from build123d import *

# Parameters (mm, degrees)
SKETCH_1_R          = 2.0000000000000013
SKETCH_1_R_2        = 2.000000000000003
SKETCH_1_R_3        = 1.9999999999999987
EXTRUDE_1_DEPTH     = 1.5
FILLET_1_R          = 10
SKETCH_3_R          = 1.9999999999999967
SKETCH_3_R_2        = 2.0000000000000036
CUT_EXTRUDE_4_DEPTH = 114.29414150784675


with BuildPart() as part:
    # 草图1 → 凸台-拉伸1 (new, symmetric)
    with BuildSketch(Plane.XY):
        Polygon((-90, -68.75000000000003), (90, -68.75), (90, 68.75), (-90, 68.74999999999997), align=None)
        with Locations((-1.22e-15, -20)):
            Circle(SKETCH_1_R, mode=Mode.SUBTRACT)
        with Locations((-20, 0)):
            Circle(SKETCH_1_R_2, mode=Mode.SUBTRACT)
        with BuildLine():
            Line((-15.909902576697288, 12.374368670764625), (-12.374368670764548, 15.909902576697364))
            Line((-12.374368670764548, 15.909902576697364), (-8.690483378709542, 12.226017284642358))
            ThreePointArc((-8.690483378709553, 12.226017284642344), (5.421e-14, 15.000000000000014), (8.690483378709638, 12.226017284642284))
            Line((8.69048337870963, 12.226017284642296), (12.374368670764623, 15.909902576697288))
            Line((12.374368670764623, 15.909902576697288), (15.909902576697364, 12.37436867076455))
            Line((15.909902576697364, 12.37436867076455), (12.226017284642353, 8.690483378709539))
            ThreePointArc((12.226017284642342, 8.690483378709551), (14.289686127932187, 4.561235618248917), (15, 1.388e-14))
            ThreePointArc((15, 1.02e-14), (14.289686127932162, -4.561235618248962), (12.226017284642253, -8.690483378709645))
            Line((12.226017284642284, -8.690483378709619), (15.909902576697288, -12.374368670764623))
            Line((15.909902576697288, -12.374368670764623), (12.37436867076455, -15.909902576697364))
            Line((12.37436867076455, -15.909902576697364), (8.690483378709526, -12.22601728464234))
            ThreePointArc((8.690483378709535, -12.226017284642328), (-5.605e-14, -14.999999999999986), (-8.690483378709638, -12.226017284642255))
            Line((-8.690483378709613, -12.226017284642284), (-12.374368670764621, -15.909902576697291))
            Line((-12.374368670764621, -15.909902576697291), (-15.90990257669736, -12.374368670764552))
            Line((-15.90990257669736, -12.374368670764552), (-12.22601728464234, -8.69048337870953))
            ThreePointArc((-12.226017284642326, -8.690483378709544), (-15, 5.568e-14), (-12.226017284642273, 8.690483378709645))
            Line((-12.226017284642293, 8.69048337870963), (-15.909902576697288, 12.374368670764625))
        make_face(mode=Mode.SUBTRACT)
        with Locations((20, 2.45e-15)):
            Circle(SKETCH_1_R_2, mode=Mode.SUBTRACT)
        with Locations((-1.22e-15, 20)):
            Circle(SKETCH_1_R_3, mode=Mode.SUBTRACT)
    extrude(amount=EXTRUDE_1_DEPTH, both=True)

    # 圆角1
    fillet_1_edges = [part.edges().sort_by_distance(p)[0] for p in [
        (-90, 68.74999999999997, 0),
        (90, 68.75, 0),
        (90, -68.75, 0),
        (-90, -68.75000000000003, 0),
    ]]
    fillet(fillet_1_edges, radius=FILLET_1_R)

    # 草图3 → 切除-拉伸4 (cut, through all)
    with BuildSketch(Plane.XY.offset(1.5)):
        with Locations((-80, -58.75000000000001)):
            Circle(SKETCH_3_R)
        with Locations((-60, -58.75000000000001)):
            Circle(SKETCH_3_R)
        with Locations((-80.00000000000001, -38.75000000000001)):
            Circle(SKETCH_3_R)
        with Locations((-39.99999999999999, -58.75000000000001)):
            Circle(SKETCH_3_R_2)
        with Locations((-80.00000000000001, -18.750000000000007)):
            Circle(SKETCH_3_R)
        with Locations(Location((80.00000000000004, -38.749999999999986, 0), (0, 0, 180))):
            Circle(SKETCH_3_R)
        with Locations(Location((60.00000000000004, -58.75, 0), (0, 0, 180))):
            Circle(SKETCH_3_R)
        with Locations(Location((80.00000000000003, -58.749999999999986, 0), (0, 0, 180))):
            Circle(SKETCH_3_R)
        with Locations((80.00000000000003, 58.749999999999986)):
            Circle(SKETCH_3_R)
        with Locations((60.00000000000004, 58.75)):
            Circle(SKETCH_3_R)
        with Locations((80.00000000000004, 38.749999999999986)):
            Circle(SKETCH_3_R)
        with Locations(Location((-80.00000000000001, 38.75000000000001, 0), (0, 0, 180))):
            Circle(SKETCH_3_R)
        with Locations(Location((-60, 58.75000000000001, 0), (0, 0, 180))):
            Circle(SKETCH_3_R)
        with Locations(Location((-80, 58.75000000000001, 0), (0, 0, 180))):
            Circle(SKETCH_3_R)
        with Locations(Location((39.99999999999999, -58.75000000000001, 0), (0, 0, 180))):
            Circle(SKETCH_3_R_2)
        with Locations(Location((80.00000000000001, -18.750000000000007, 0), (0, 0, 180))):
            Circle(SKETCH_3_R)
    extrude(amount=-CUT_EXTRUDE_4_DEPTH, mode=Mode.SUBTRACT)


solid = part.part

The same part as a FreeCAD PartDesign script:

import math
import FreeCAD as App
import Part
import Sketcher

V = App.Vector


def edges_at(feature, points):
    """Names of the edges that pass closest to the given points."""
    edges = feature.Shape.Edges
    near = lambda p: min(range(len(edges)), key=lambda i: edges[i].distToShape(Part.Vertex(*p))[0])
    return sorted({f"Edge{near(p) + 1}" for p in points})

doc = App.newDocument("Part")
body = doc.addObject("PartDesign::Body", "Body")

sketch1 = doc.addObject("Sketcher::SketchObject", "Sketch")
body.addObject(sketch1)
sketch1.AttachmentSupport = (doc.XY_Plane, [""])
sketch1.MapMode = "FlatFace"
sketch1.addGeometry(Part.LineSegment(V(-90, -68.8, 0), V(90, -68.8, 0)), False)
sketch1.addGeometry(Part.LineSegment(V(90, -68.8, 0), V(90, 68.8, 0)), False)
sketch1.addGeometry(Part.LineSegment(V(90, 68.8, 0), V(-90, 68.8, 0)), False)
sketch1.addGeometry(Part.LineSegment(V(-90, 68.8, 0), V(-90, -68.8, 0)), False)
sketch1.addGeometry(Part.Circle(V(0, -20, 0), V(0, 0, 1), 2), False)
sketch1.addGeometry(Part.Circle(V(-20, 0, 0), V(0, 0, 1), 2), False)
sketch1.addGeometry(Part.LineSegment(V(-12.2, 8.7, 0), V(-15.9, 12.4, 0)), False)
sketch1.addGeometry(Part.LineSegment(V(-15.9, 12.4, 0), V(-12.4, 15.9, 0)), False)
sketch1.addGeometry(Part.LineSegment(V(-12.4, 15.9, 0), V(-8.7, 12.2, 0)), False)
sketch1.addGeometry(Part.ArcOfCircle(Part.Circle(V(0, 0, 0), V(0, 0, 1), 15), math.radians(55), math.radians(125)), False)
sketch1.addGeometry(Part.LineSegment(V(8.7, 12.2, 0), V(12.4, 15.9, 0)), False)
sketch1.addGeometry(Part.LineSegment(V(12.4, 15.9, 0), V(15.9, 12.4, 0)), False)
sketch1.addGeometry(Part.LineSegment(V(15.9, 12.4, 0), V(12.2, 8.7, 0)), False)
sketch1.addGeometry(Part.ArcOfCircle(Part.Circle(V(0, 0, 0), V(0, 0, 1), 15), math.radians(-35), math.radians(35)), False)
sketch1.addGeometry(Part.LineSegment(V(12.2, -8.7, 0), V(15.9, -12.4, 0)), False)
sketch1.addGeometry(Part.LineSegment(V(15.9, -12.4, 0), V(12.4, -15.9, 0)), False)
sketch1.addGeometry(Part.LineSegment(V(12.4, -15.9, 0), V(8.7, -12.2, 0)), False)
sketch1.addGeometry(Part.ArcOfCircle(Part.Circle(V(0, 0, 0), V(0, 0, 1), 15), math.radians(-125), math.radians(-55)), False)
sketch1.addGeometry(Part.LineSegment(V(-8.7, -12.2, 0), V(-12.4, -15.9, 0)), False)
sketch1.addGeometry(Part.LineSegment(V(-12.4, -15.9, 0), V(-15.9, -12.4, 0)), False)
sketch1.addGeometry(Part.LineSegment(V(-15.9, -12.4, 0), V(-12.2, -8.7, 0)), False)
sketch1.addGeometry(Part.ArcOfCircle(Part.Circle(V(0, 0, 0), V(0, 0, 1), 15), math.radians(145), math.radians(215)), False)
sketch1.addGeometry(Part.Circle(V(20, 0, 0), V(0, 0, 1), 2), False)
sketch1.addGeometry(Part.Circle(V(0, 20, 0), V(0, 0, 1), 2), False)
sketch1.addConstraint(Sketcher.Constraint("Coincident", 0, 2, 1, 1))
sketch1.addConstraint(Sketcher.Constraint("Coincident", 1, 2, 2, 1))
sketch1.addConstraint(Sketcher.Constraint("Coincident", 2, 2, 3, 1))
sketch1.addConstraint(Sketcher.Constraint("Coincident", 3, 2, 0, 1))
sketch1.addConstraint(Sketcher.Constraint("Coincident", 6, 2, 7, 1))
sketch1.addConstraint(Sketcher.Constraint("Coincident", 7, 2, 8, 1))
sketch1.addConstraint(Sketcher.Constraint("Coincident", 8, 2, 9, 2))
sketch1.addConstraint(Sketcher.Constraint("Coincident", 9, 1, 10, 1))
sketch1.addConstraint(Sketcher.Constraint("Coincident", 10, 2, 11, 1))
sketch1.addConstraint(Sketcher.Constraint("Coincident", 11, 2, 12, 1))
sketch1.addConstraint(Sketcher.Constraint("Coincident", 12, 2, 13, 2))
sketch1.addConstraint(Sketcher.Constraint("Coincident", 13, 1, 14, 1))
sketch1.addConstraint(Sketcher.Constraint("Coincident", 14, 2, 15, 1))
sketch1.addConstraint(Sketcher.Constraint("Coincident", 15, 2, 16, 1))
sketch1.addConstraint(Sketcher.Constraint("Coincident", 16, 2, 17, 2))
sketch1.addConstraint(Sketcher.Constraint("Coincident", 17, 1, 18, 1))
sketch1.addConstraint(Sketcher.Constraint("Coincident", 18, 2, 19, 1))
sketch1.addConstraint(Sketcher.Constraint("Coincident", 19, 2, 20, 1))
sketch1.addConstraint(Sketcher.Constraint("Coincident", 20, 2, 21, 2))
sketch1.addConstraint(Sketcher.Constraint("Coincident", 21, 1, 6, 1))
sketch1.addConstraint(Sketcher.Constraint("Horizontal", 0))
sketch1.addConstraint(Sketcher.Constraint("Vertical", 1))
sketch1.addConstraint(Sketcher.Constraint("Horizontal", 2))
sketch1.addConstraint(Sketcher.Constraint("Vertical", 3))
sketch1.addConstraint(Sketcher.Constraint("Coincident", 9, 3, -1, 1))
sketch1.addConstraint(Sketcher.Constraint("Coincident", 13, 3, -1, 1))
sketch1.addConstraint(Sketcher.Constraint("Coincident", 17, 3, -1, 1))
sketch1.addConstraint(Sketcher.Constraint("Coincident", 21, 3, -1, 1))
sketch1.addConstraint(Sketcher.Constraint("Equal", 4, 5))
sketch1.addConstraint(Sketcher.Constraint("Equal", 9, 13))
sketch1.addConstraint(Sketcher.Constraint("Equal", 13, 17))
sketch1.addConstraint(Sketcher.Constraint("Equal", 17, 21))
sketch1.addConstraint(Sketcher.Constraint("Equal", 5, 22))
sketch1.addConstraint(Sketcher.Constraint("Equal", 22, 23))
sketch1.addConstraint(Sketcher.Constraint("Symmetric", 5, 3, 22, 3, -1, 1))
sketch1.addConstraint(Sketcher.Constraint("Symmetric", 4, 3, 23, 3, -1, 1))
sketch1.addConstraint(Sketcher.Constraint("Symmetric", 0, 2, 2, 2, -1, 1))
sketch1.addConstraint(Sketcher.Constraint("Symmetric", 6, 2, 14, 2, -1, 1))
sketch1.addConstraint(Sketcher.Constraint("Symmetric", 7, 2, 15, 2, -1, 1))
sketch1.addConstraint(Sketcher.Constraint("Symmetric", 10, 2, 18, 2, -1, 1))
sketch1.addConstraint(Sketcher.Constraint("Symmetric", 11, 2, 19, 2, -1, 1))
sketch1.addConstraint(Sketcher.Constraint("Symmetric", 7, 2, 10, 2, -2))
sketch1.addConstraint(Sketcher.Constraint("Symmetric", 6, 2, 11, 2, -2))
sketch1.addConstraint(Sketcher.Constraint("PointOnObject", 4, 3, -2))
sketch1.addConstraint(Sketcher.Constraint("PointOnObject", 5, 3, -1))
sketch1.addConstraint(Sketcher.Constraint("Perpendicular", 6, 7))
sketch1.addConstraint(Sketcher.Constraint("Perpendicular", 7, 8))
sketch1.addConstraint(Sketcher.Constraint("Perpendicular", 8, 10))
sketch1.addConstraint(Sketcher.Constraint("Perpendicular", 10, 11))
sketch1.addConstraint(Sketcher.Constraint("Perpendicular", 11, 12))
sketch1.addConstraint(Sketcher.Constraint("Perpendicular", 12, 14))
sketch1.addConstraint(Sketcher.Constraint("Perpendicular", 15, 16))
sketch1.addConstraint(Sketcher.Constraint("Perpendicular", 16, 18))
sketch1.addConstraint(Sketcher.Constraint("Perpendicular", 19, 20))
sketch1.addConstraint(Sketcher.Constraint("Equal", 6, 8))
sketch1.addConstraint(Sketcher.Constraint("Diameter", 4, 4.0))
sketch1.addConstraint(Sketcher.Constraint("Radius", 9, 15.0))
sketch1.addConstraint(Sketcher.Constraint("DistanceX", 0, 1, 0, 2, 180.0))
sketch1.addConstraint(Sketcher.Constraint("Distance", 7, 5.0))
sketch1.addConstraint(Sketcher.Constraint("DistanceY", 1, 1, 1, 2, 137.5))
sketch1.addConstraint(Sketcher.Constraint("DistanceY", 4, 3, -1, 1, 20.0))
sketch1.addConstraint(Sketcher.Constraint("DistanceX", 5, 3, -1, 1, 20.0))
sketch1.addConstraint(Sketcher.Constraint("Distance", 6, 5.209801))
pad1 = doc.addObject("PartDesign::Pad", "Pad")
body.addObject(pad1)
pad1.Profile = sketch1
pad1.Length = 3
pad1.Midplane = True
doc.recompute()

fillet = doc.addObject("PartDesign::Fillet", "Fillet")
body.addObject(fillet)
fillet.Base = (pad1, edges_at(pad1, [
    (-90, 68.75, 0),
    (90, 68.75, 0),
    (90, -68.75, 0),
    (-90, -68.75, 0),
]))
fillet.Radius = 10

sketch2 = doc.addObject("Sketcher::SketchObject", "Sketch001")
body.addObject(sketch2)
sketch2.AttachmentSupport = (doc.XY_Plane, [""])
sketch2.MapMode = "FlatFace"
sketch2.AttachmentOffset = App.Placement(V(0, 0, 1.5), App.Rotation())
sketch2.addGeometry(Part.Circle(V(-80, -58.8, 0), V(0, 0, 1), 2), False)
sketch2.addGeometry(Part.Circle(V(-60, -58.8, 0), V(0, 0, 1), 2), False)
sketch2.addGeometry(Part.Circle(V(-80, -38.8, 0), V(0, 0, 1), 2), False)
sketch2.addGeometry(Part.Circle(V(-40, -58.8, 0), V(0, 0, 1), 2), False)
sketch2.addGeometry(Part.Circle(V(-80, -18.8, 0), V(0, 0, 1), 2), False)
sketch2.addGeometry(Part.Circle(V(80, -38.8, 0), V(0, 0, 1), 2), False)
sketch2.addGeometry(Part.Circle(V(60, -58.8, 0), V(0, 0, 1), 2), False)
sketch2.addGeometry(Part.Circle(V(80, -58.8, 0), V(0, 0, 1), 2), False)
sketch2.addGeometry(Part.Circle(V(80, 58.8, 0), V(0, 0, 1), 2), False)
sketch2.addGeometry(Part.Circle(V(60, 58.8, 0), V(0, 0, 1), 2), False)
sketch2.addGeometry(Part.Circle(V(80, 38.8, 0), V(0, 0, 1), 2), False)
sketch2.addGeometry(Part.Circle(V(-80, 38.8, 0), V(0, 0, 1), 2), False)
sketch2.addGeometry(Part.Circle(V(-60, 58.8, 0), V(0, 0, 1), 2), False)
sketch2.addGeometry(Part.Circle(V(-80, 58.8, 0), V(0, 0, 1), 2), False)
sketch2.addGeometry(Part.Circle(V(40, -58.8, 0), V(0, 0, 1), 2), False)
sketch2.addGeometry(Part.Circle(V(80, -18.8, 0), V(0, 0, 1), 2), False)
sketch2.addConstraint(Sketcher.Constraint("Equal", 0, 1))
sketch2.addConstraint(Sketcher.Constraint("Equal", 1, 2))
sketch2.addConstraint(Sketcher.Constraint("Equal", 2, 3))
sketch2.addConstraint(Sketcher.Constraint("Equal", 3, 4))
sketch2.addConstraint(Sketcher.Constraint("Equal", 4, 5))
sketch2.addConstraint(Sketcher.Constraint("Equal", 5, 6))
sketch2.addConstraint(Sketcher.Constraint("Equal", 6, 7))
sketch2.addConstraint(Sketcher.Constraint("Equal", 7, 8))
sketch2.addConstraint(Sketcher.Constraint("Equal", 8, 9))
sketch2.addConstraint(Sketcher.Constraint("Equal", 9, 10))
sketch2.addConstraint(Sketcher.Constraint("Equal", 10, 11))
sketch2.addConstraint(Sketcher.Constraint("Equal", 11, 12))
sketch2.addConstraint(Sketcher.Constraint("Equal", 12, 13))
sketch2.addConstraint(Sketcher.Constraint("Equal", 13, 14))
sketch2.addConstraint(Sketcher.Constraint("Equal", 14, 15))
sketch2.addConstraint(Sketcher.Constraint("Symmetric", 0, 3, 8, 3, -1, 1))
sketch2.addConstraint(Sketcher.Constraint("Symmetric", 1, 3, 9, 3, -1, 1))
sketch2.addConstraint(Sketcher.Constraint("Symmetric", 2, 3, 10, 3, -1, 1))
sketch2.addConstraint(Sketcher.Constraint("Symmetric", 5, 3, 11, 3, -1, 1))
sketch2.addConstraint(Sketcher.Constraint("Symmetric", 6, 3, 12, 3, -1, 1))
sketch2.addConstraint(Sketcher.Constraint("Symmetric", 7, 3, 13, 3, -1, 1))
sketch2.addConstraint(Sketcher.Constraint("Symmetric", 2, 3, 5, 3, -2))
sketch2.addConstraint(Sketcher.Constraint("Symmetric", 1, 3, 6, 3, -2))
sketch2.addConstraint(Sketcher.Constraint("Symmetric", 0, 3, 7, 3, -2))
sketch2.addConstraint(Sketcher.Constraint("Symmetric", 3, 3, 14, 3, -2))
sketch2.addConstraint(Sketcher.Constraint("Symmetric", 4, 3, 15, 3, -2))
sketch2.addConstraint(Sketcher.Constraint("Horizontal", 0, 3, 1, 3))
sketch2.addConstraint(Sketcher.Constraint("Horizontal", 1, 3, 3, 3))
sketch2.addConstraint(Sketcher.Constraint("Vertical", 0, 3, 2, 3))
sketch2.addConstraint(Sketcher.Constraint("Vertical", 2, 3, 4, 3))
sketch2.addConstraint(Sketcher.Constraint("Diameter", 0, 4.0))
sketch2.addConstraint(Sketcher.Constraint("DistanceX", 0, 3, -1, 1, 80.0))
sketch2.addConstraint(Sketcher.Constraint("DistanceX", 1, 3, -1, 1, 60.0))
sketch2.addConstraint(Sketcher.Constraint("DistanceX", 3, 3, -1, 1, 40.0))
sketch2.addConstraint(Sketcher.Constraint("DistanceY", 0, 3, 2, 3, 20.0))
sketch2.addConstraint(Sketcher.Constraint("DistanceY", 2, 3, 4, 3, 20.0))
sketch2.addConstraint(Sketcher.Constraint("DistanceY", 5, 3, 8, 3, 97.5))
pocket1 = doc.addObject("PartDesign::Pocket", "Pocket")
body.addObject(pocket1)
pocket1.Profile = sketch2
pocket1.Type = "ThroughAll"

doc.recompute()
